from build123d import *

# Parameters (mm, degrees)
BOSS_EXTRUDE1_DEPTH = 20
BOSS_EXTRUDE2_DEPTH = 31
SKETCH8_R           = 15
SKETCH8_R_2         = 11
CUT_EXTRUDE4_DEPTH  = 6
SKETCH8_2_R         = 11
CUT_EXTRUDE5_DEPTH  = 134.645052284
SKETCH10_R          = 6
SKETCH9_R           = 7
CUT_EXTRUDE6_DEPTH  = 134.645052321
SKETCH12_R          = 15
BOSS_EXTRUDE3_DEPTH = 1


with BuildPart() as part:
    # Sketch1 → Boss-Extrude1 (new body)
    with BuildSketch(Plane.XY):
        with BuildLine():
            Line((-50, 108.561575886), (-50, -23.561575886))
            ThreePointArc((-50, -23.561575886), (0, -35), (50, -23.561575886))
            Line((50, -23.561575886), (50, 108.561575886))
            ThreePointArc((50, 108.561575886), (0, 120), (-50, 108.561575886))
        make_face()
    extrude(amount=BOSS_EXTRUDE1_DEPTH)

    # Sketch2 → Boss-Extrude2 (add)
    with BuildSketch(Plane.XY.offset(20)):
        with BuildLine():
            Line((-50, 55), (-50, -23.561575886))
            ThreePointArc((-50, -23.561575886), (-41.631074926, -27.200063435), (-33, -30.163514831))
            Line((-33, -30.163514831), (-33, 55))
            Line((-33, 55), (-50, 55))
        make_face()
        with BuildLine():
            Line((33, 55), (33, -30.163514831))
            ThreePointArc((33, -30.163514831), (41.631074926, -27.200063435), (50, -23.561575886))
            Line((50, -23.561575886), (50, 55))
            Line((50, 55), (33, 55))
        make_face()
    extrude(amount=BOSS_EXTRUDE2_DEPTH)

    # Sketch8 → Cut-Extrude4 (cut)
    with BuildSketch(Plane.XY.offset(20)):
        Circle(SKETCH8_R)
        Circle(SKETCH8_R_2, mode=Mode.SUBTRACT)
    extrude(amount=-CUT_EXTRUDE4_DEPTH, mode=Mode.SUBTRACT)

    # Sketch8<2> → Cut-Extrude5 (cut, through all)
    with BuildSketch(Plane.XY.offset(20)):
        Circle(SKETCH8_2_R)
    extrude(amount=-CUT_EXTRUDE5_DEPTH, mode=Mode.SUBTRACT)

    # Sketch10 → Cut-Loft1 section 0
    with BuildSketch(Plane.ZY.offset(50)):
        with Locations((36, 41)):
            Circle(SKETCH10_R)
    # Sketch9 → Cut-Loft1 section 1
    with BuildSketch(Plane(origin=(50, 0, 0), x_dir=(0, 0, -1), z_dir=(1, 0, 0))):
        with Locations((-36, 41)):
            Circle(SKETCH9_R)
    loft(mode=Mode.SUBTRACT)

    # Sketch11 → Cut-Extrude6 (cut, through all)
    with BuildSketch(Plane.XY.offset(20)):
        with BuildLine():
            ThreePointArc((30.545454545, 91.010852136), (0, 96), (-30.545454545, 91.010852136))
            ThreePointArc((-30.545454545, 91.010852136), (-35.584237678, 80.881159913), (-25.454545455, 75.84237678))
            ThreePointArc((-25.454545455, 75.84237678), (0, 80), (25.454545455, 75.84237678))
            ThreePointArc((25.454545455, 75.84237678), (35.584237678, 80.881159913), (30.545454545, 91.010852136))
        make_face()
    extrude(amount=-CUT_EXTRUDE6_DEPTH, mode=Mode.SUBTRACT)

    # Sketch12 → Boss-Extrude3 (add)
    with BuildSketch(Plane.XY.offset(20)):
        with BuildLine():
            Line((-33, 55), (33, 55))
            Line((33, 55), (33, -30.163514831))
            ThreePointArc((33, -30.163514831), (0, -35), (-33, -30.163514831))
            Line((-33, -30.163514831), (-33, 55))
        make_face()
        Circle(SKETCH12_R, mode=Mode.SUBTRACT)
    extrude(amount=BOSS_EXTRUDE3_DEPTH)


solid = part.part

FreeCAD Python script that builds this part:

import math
import FreeCAD as App
import Part
import Sketcher

V = App.Vector
Q = App.Units.Quantity

doc = App.newDocument("Part")
body = doc.addObject("PartDesign::Body", "Body")

# Sketch on XY plane
sketch1 = body.newObject("Sketcher::SketchObject", "Sketch")
sketch1.AttachmentSupport = (doc.getObject("XY_Plane"), [""])
sketch1.MapMode = "FlatFace"
sketch1.addGeometry([
    Part.LineSegment(V(-50, 108.561576, 0), V(-50, -23.561576, 0)),
    Part.ArcOfCircle(Part.Circle(V(0, 80, 0), V(0, 0, 1), 115), math.radians(-115.771462), math.radians(-64.228538)),
    Part.LineSegment(V(50, -23.561576, 0), V(50, 108.561576, 0)),
    Part.ArcOfCircle(Part.Circle(V(0, 5, 0), V(0, 0, 1), 115), math.radians(64.228538), math.radians(115.771462)),
], False)
sketch1.addConstraint([
    Sketcher.Constraint("Coincident", 0, 2, 1, 1),
    Sketcher.Constraint("Coincident", 1, 2, 2, 1),
    Sketcher.Constraint("Coincident", 2, 2, 3, 1),
    Sketcher.Constraint("Coincident", 3, 2, 0, 1),
    Sketcher.Constraint("Vertical", 0),
    Sketcher.Constraint("Vertical", 2),
    Sketcher.Constraint("Equal", 1, 3),
    Sketcher.Constraint("Symmetric", 0, 2, 1, 2, -2),
    Sketcher.Constraint("PointOnObject", 3, 3, -2),
    Sketcher.Constraint("Radius", 1, Q("115 mm")),
    Sketcher.Constraint("DistanceY", -1, 1, 1, 3, Q("80 mm")),
    Sketcher.Constraint("DistanceY", -1, 1, 3, 3, Q("5 mm")),
    Sketcher.Constraint("DistanceX", 0, 2, -1, 1, Q("50 mm")),
])
pad1 = body.newObject("PartDesign::Pad", "Pad")
pad1.Profile = sketch1
pad1.Length = 20

# Sketch on XY plane
sketch2 = body.newObject("Sketcher::SketchObject", "Sketch001")
sketch2.AttachmentSupport = (doc.getObject("XY_Plane"), [""])
sketch2.MapMode = "FlatFace"
sketch2.AttachmentOffset = App.Placement(V(0, 0, 20), App.Rotation())
sketch2.addGeometry([
    Part.LineSegment(V(-50, 55, 0), V(-50, -23.561576, 0)),  # 0
    Part.ArcOfCircle(Part.Circle(V(0, 80, 0), V(0, 0, 1), 115), math.radians(-115.771462), math.radians(-106.675835)),  # 1
    Part.LineSegment(V(-33, -30.163515, 0), V(-33, 55, 0)),  # 2
    Part.LineSegment(V(-33, 55, 0), V(-50, 55, 0)),  # 3
    Part.LineSegment(V(33, 55, 0), V(33, -30.163515, 0)),  # 4
    Part.ArcOfCircle(Part.Circle(V(0, 80, 0), V(0, 0, 1), 115), math.radians(-73.324165), math.radians(-64.228538)),  # 5
    Part.LineSegment(V(50, -23.561576, 0), V(50, 55, 0)),  # 6
    Part.LineSegment(V(50, 55, 0), V(33, 55, 0)),  # 7
], False)
sketch2.addConstraint([
    Sketcher.Constraint("Coincident", 0, 2, 1, 1),
    Sketcher.Constraint("Coincident", 1, 2, 2, 1),
    Sketcher.Constraint("Coincident", 2, 2, 3, 1),
    Sketcher.Constraint("Coincident", 3, 2, 0, 1),
    Sketcher.Constraint("Coincident", 4, 2, 5, 1),
    Sketcher.Constraint("Coincident", 5, 2, 6, 1),
    Sketcher.Constraint("Coincident", 6, 2, 7, 1),
    Sketcher.Constraint("Coincident", 7, 2, 4, 1),
    Sketcher.Constraint("Vertical", 0),
    Sketcher.Constraint("Vertical", 2),
    Sketcher.Constraint("Horizontal", 3),
    Sketcher.Constraint("Vertical", 4),
    Sketcher.Constraint("Vertical", 6),
    Sketcher.Constraint("Horizontal", 7),
    Sketcher.Constraint("Coincident", 5, 3, 1, 3),
    Sketcher.Constraint("Equal", 1, 5),
    Sketcher.Constraint("Symmetric", 1, 2, 4, 2, -2),
    Sketcher.Constraint("Symmetric", 3, 2, 6, 2, -2),
    Sketcher.Constraint("Radius", 1, Q("115 mm")),
    Sketcher.Constraint("DistanceX", 3, 2, 3, 1, Q("17 mm")),
    Sketcher.Constraint("DistanceY", -1, 1, 1, 3, Q("80 mm")),
    Sketcher.Constraint("DistanceX", 0, 2, -1, 1, Q("50 mm")),
    Sketcher.Constraint("DistanceY", -1, 1, 2, 2, Q("55 mm")),
])
pad2 = body.newObject("PartDesign::Pad", "Pad001")
pad2.Profile = sketch2
pad2.Length = 31

# Sketch on XY plane
sketch3 = body.newObject("Sketcher::SketchObject", "Sketch002")
sketch3.AttachmentSupport = (doc.getObject("XY_Plane"), [""])
sketch3.MapMode = "FlatFace"
sketch3.AttachmentOffset = App.Placement(V(0, 0, 20), App.Rotation())
sketch3.addGeometry([
    Part.Circle(V(0, 0, 0), V(0, 0, 1), 15),
    Part.Circle(V(0, 0, 0), V(0, 0, 1), 11),
], False)
sketch3.addConstraint([
    Sketcher.Constraint("Coincident", 0, 3, -1, 1),
    Sketcher.Constraint("Coincident", 1, 3, -1, 1),
    Sketcher.Constraint("Diameter", 0, Q("30 mm")),
    Sketcher.Constraint("Diameter", 1, Q("22 mm")),
])
pocket1 = body.newObject("PartDesign::Pocket", "Pocket")
pocket1.Profile = sketch3
pocket1.Length = 6

# Sketch on XY plane
sketch4 = body.newObject("Sketcher::SketchObject", "Sketch003")
sketch4.AttachmentSupport = (doc.getObject("XY_Plane"), [""])
sketch4.MapMode = "FlatFace"
sketch4.AttachmentOffset = App.Placement(V(0, 0, 20), App.Rotation())
sketch4.addGeometry(Part.Circle(V(0, 0, 0), V(0, 0, 1), 11), False)
sketch4.addConstraint([
    Sketcher.Constraint("Coincident", 0, 3, -1, 1),
    Sketcher.Constraint("Diameter", 0, Q("22 mm")),
])
pocket2 = body.newObject("PartDesign::Pocket", "Pocket001")
pocket2.Profile = sketch4
pocket2.Type = "ThroughAll"

# Sketch on YZ plane
sketch5 = body.newObject("Sketcher::SketchObject", "Sketch004")
sketch5.AttachmentSupport = (doc.getObject("YZ_Plane"), [""])
sketch5.MapMode = "FlatFace"
sketch5.AttachmentOffset = App.Placement(V(0, 0, -50), App.Rotation())
sketch5.addGeometry(Part.Circle(V(41, 36, 0), V(0, 0, 1), 6), False)
sketch5.addConstraint([
    Sketcher.Constraint("Diameter", 0, Q("12 mm")),
    Sketcher.Constraint("DistanceX", -1, 1, 0, 3, Q("41 mm")),
    Sketcher.Constraint("DistanceY", -1, 1, 0, 3, Q("36 mm")),
])

# Sketch on YZ plane
sketch6 = body.newObject("Sketcher::SketchObject", "Sketch005")
sketch6.AttachmentSupport = (doc.getObject("YZ_Plane"), [""])
sketch6.MapMode = "FlatFace"
sketch6.AttachmentOffset = App.Placement(V(0, 0, 50), App.Rotation())
sketch6.addGeometry(Part.Circle(V(41, 36, 0), V(0, 0, 1), 7), False)
sketch6.addConstraint([
    Sketcher.Constraint("Diameter", 0, Q("14 mm")),
    Sketcher.Constraint("DistanceX", -1, 1, 0, 3, Q("41 mm")),
    Sketcher.Constraint("DistanceY", -1, 1, 0, 3, Q("36 mm")),
])

subtractiveloft = body.newObject("PartDesign::SubtractiveLoft", "SubtractiveLoft")
subtractiveloft.Profile = sketch5
subtractiveloft.Sections = [sketch6]

# Sketch on XY plane
sketch7 = body.newObject("Sketcher::SketchObject", "Sketch006")
sketch7.AttachmentSupport = (doc.getObject("XY_Plane"), [""])
sketch7.MapMode = "FlatFace"
sketch7.AttachmentOffset = App.Placement(V(0, 0, 20), App.Rotation())
sketch7.addGeometry([
    Part.ArcOfCircle(Part.Circle(V(0, 0, 0), V(0, 0, 1), 96), math.radians(71.446995), math.radians(108.553005)),
    Part.ArcOfCircle(Part.Circle(V(-28, 83.426614, 0), V(0, 0, 1), 8), math.radians(108.553005), math.radians(288.553005)),
    Part.ArcOfCircle(Part.Circle(V(0, 0, 0), V(0, 0, 1), 80), math.radians(71.446995), math.radians(108.553005)),
    Part.ArcOfCircle(Part.Circle(V(28, 83.426614, 0), V(0, 0, 1), 8), math.radians(-108.553005), math.radians(71.446995)),
], False)
sketch7.addConstraint([
    Sketcher.Constraint("Tangent", 0, 2, 1, 1),
    Sketcher.Constraint("Tangent", 1, 2, 2, 2),
    Sketcher.Constraint("Tangent", 2, 1, 3, 1),
    Sketcher.Constraint("Tangent", 3, 2, 0, 1),
    Sketcher.Constraint("Coincident", 0, 3, -1, 1),
    Sketcher.Constraint("Coincident", 2, 3, -1, 1),
    Sketcher.Constraint("Horizontal", 1, 3, 3, 3),
    Sketcher.Constraint("Radius", 0, Q("96 mm")),
    Sketcher.Constraint("Radius", 1, Q("8 mm")),
    Sketcher.Constraint("DistanceX", 1, 3, -1, 1, Q("28 mm")),
])
pocket3 = body.newObject("PartDesign::Pocket", "Pocket002")
pocket3.Profile = sketch7
pocket3.Type = "ThroughAll"

# Sketch on XY plane
sketch8 = body.newObject("Sketcher::SketchObject", "Sketch007")
sketch8.AttachmentSupport = (doc.getObject("XY_Plane"), [""])
sketch8.MapMode = "FlatFace"
sketch8.AttachmentOffset = App.Placement(V(0, 0, 20), App.Rotation())
sketch8.addGeometry([
    Part.LineSegment(V(33, 55, 0), V(-33, 55, 0)),  # 0
    Part.LineSegment(V(-33, 55, 0), V(-33, -30.163515, 0)),  # 1
    Part.ArcOfCircle(Part.Circle(V(0, 80, 0), V(0, 0, 1), 115), math.radians(-106.675835), math.radians(-73.324165)),  # 2
    Part.LineSegment(V(33, -30.163515, 0), V(33, 55, 0)),  # 3
    Part.Circle(V(0, 0, 0), V(0, 0, 1), 15),  # 4
], False)
sketch8.addConstraint([
    Sketcher.Constraint("Coincident", 0, 2, 1, 1),
    Sketcher.Constraint("Coincident", 1, 2, 2, 1),
    Sketcher.Constraint("Coincident", 2, 2, 3, 1),
    Sketcher.Constraint("Coincident", 3, 2, 0, 1),
    Sketcher.Constraint("Horizontal", 0),
    Sketcher.Constraint("Vertical", 1),
    Sketcher.Constraint("Vertical", 3),
    Sketcher.Constraint("Coincident", 4, 3, -1, 1),
    Sketcher.Constraint("Symmetric", 1, 2, 2, 2, -2),
    Sketcher.Constraint("Diameter", 4, Q("30 mm")),
    Sketcher.Constraint("Radius", 2, Q("115 mm")),
    Sketcher.Constraint("DistanceX", 0, 2, 0, 1, Q("66 mm")),
    Sketcher.Constraint("DistanceY", -1, 1, 2, 3, Q("80 mm")),
    Sketcher.Constraint("DistanceY", -1, 1, 0, 2, Q("55 mm")),
])
pad3 = body.newObject("PartDesign::Pad", "Pad002")
pad3.Profile = sketch8
pad3.Length = 1

doc.recompute()
